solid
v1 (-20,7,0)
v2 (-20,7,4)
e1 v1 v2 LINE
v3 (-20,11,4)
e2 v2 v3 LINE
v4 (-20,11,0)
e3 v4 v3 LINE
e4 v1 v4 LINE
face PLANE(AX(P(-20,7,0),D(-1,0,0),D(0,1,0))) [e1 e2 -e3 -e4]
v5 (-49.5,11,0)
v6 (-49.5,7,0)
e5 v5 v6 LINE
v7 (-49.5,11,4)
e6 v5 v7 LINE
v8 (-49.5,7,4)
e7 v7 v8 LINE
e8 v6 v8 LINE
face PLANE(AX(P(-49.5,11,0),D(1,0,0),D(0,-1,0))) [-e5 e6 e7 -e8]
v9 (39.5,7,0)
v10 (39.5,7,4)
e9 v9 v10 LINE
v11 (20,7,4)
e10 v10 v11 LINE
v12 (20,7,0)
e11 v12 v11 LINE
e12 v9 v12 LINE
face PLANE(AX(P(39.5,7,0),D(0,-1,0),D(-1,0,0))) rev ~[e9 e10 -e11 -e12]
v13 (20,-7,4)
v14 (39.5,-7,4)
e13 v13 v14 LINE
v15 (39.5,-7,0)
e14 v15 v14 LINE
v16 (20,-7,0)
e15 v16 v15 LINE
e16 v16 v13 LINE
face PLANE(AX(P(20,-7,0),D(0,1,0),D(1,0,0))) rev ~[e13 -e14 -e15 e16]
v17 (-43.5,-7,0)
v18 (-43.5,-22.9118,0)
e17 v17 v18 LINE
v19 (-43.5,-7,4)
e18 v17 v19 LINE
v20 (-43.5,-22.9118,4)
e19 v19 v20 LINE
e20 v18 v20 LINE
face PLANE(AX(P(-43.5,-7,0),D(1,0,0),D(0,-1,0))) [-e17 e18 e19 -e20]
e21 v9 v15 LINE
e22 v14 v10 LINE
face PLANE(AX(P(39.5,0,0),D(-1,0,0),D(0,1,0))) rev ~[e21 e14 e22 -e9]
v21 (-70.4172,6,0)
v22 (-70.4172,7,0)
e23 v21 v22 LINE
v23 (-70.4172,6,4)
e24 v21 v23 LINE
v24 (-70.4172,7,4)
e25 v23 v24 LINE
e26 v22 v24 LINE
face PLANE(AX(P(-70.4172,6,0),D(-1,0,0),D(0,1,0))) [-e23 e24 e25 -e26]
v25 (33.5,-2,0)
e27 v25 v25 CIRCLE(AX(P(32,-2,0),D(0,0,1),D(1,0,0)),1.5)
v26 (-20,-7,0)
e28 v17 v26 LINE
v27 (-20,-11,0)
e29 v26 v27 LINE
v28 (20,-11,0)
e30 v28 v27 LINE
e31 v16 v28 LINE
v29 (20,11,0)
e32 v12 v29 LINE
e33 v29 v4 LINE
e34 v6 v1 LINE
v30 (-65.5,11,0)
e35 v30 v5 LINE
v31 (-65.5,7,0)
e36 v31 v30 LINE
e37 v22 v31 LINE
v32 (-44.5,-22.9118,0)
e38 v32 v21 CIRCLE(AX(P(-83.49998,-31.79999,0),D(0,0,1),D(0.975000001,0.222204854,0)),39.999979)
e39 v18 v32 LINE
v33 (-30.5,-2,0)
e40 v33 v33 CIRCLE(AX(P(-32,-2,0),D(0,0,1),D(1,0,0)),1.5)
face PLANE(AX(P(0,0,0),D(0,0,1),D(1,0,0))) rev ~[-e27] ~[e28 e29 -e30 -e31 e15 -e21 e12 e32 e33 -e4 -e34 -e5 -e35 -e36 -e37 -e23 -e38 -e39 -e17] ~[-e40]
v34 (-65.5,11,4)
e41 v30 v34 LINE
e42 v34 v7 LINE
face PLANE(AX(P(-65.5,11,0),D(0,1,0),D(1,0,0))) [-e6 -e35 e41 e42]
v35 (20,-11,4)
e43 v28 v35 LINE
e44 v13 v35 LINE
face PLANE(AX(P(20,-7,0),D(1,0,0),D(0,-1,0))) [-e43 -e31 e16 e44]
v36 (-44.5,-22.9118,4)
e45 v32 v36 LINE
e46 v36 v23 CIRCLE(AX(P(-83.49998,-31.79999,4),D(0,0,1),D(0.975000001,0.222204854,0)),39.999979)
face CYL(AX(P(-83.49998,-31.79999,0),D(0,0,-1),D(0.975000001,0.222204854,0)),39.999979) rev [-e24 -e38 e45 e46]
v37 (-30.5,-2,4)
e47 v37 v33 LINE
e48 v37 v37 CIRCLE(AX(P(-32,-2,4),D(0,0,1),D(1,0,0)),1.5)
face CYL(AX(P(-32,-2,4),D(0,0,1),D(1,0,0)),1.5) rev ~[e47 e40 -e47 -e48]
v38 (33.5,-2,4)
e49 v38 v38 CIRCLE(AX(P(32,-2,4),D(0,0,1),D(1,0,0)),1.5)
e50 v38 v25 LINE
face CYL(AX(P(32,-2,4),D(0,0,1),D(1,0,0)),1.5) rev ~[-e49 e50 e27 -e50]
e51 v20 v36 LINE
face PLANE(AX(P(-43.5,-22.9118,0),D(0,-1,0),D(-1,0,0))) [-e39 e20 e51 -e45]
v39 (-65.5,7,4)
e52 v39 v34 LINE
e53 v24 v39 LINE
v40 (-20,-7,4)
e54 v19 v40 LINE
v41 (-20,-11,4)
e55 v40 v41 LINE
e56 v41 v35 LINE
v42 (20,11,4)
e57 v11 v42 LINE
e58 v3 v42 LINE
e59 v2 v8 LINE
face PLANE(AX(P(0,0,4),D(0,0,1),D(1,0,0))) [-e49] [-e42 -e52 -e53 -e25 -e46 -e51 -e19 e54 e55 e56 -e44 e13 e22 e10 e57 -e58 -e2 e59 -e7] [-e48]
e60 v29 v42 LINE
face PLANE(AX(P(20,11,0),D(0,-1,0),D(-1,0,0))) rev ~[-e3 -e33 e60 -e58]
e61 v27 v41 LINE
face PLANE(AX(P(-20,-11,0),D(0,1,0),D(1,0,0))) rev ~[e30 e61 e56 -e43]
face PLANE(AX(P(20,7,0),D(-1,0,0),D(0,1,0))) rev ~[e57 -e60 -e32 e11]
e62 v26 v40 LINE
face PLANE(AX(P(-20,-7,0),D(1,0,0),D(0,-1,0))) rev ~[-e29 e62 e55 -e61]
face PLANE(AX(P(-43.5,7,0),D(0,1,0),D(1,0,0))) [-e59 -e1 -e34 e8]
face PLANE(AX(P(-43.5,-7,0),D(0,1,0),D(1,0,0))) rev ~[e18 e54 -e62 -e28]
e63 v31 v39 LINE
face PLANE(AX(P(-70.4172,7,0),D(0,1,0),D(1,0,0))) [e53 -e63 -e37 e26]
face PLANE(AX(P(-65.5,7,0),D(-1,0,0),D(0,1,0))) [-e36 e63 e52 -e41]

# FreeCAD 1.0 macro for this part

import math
import FreeCAD as App
import Part
import Sketcher

V = App.Vector

doc = App.newDocument("Part")
body = doc.addObject("PartDesign::Body", "Body")

# Sketch on XY plane
sketch1 = body.newObject("Sketcher::SketchObject", "Sketch")
sketch1.AttachmentSupport = (doc.getObject("XY_Plane"), [""])
sketch1.MapMode = "FlatFace"
sketch1.addGeometry([
    Part.LineSegment(V(20, 11, 0), V(-20, 11, 0)),  # 0
    Part.LineSegment(V(-20, 11, 0), V(-20, 7, 0)),  # 1
    Part.LineSegment(V(-20, 7, 0), V(-49.5, 7, 0)),  # 2
    Part.LineSegment(V(-49.5, 7, 0), V(-49.5, 11, 0)),  # 3
    Part.LineSegment(V(-49.5, 11, 0), V(-65.5, 11, 0)),  # 4
    Part.LineSegment(V(-65.5, 11, 0), V(-65.5, 7, 0)),  # 5
    Part.LineSegment(V(-65.5, 7, 0), V(-70.4, 7, 0)),  # 6
    Part.LineSegment(V(-70.4, 7, 0), V(-70.4, 6, 0)),  # 7
    Part.ArcOfCircle(Part.Circle(V(-83.5, -31.8, 0), V(0, 0, 1), 40), math.radians(13), math.radians(71)),  # 8
    Part.LineSegment(V(-44.5, -22.9, 0), V(-43.5, -22.9, 0)),  # 9
    Part.LineSegment(V(-43.5, -22.9, 0), V(-43.5, -7, 0)),  # 10
    Part.LineSegment(V(-43.5, -7, 0), V(-20, -7, 0)),  # 11
    Part.LineSegment(V(-20, -7, 0), V(-20, -11, 0)),  # 12
    Part.LineSegment(V(-20, -11, 0), V(20, -11, 0)),  # 13
    Part.LineSegment(V(20, -11, 0), V(20, -7, 0)),  # 14
    Part.LineSegment(V(20, -7, 0), V(39.5, -7, 0)),  # 15
    Part.LineSegment(V(39.5, -7, 0), V(39.5, 7, 0)),  # 16
    Part.LineSegment(V(39.5, 7, 0), V(20, 7, 0)),  # 17
    Part.LineSegment(V(20, 7, 0), V(20, 11, 0)),  # 18
], False)
sketch1.addConstraint([
    Sketcher.Constraint("Coincident", 0, 2, 1, 1),
    Sketcher.Constraint("Coincident", 1, 2, 2, 1),
    Sketcher.Constraint("Coincident", 2, 2, 3, 1),
    Sketcher.Constraint("Coincident", 3, 2, 4, 1),
    Sketcher.Constraint("Coincident", 4, 2, 5, 1),
    Sketcher.Constraint("Coincident", 5, 2, 6, 1),
    Sketcher.Constraint("Coincident", 6, 2, 7, 1),
    Sketcher.Constraint("Coincident", 7, 2, 8, 2),
    Sketcher.Constraint("Coincident", 8, 1, 9, 1),
    Sketcher.Constraint("Coincident", 9, 2, 10, 1),
    Sketcher.Constraint("Coincident", 10, 2, 11, 1),
    Sketcher.Constraint("Coincident", 11, 2, 12, 1),
    Sketcher.Constraint("Coincident", 12, 2, 13, 1),
    Sketcher.Constraint("Coincident", 13, 2, 14, 1),
    Sketcher.Constraint("Coincident", 14, 2, 15, 1),
    Sketcher.Constraint("Coincident", 15, 2, 16, 1),
    Sketcher.Constraint("Coincident", 16, 2, 17, 1),
    Sketcher.Constraint("Coincident", 17, 2, 18, 1),
    Sketcher.Constraint("Coincident", 18, 2, 0, 1),
    Sketcher.Constraint("Horizontal", 0),
    Sketcher.Constraint("Vertical", 1),
    Sketcher.Constraint("Horizontal", 2),
    Sketcher.Constraint("Vertical", 3),
    Sketcher.Constraint("Horizontal", 4),
    Sketcher.Constraint("Vertical", 5),
    Sketcher.Constraint("Horizontal", 6),
    Sketcher.Constraint("Vertical", 7),
    Sketcher.Constraint("Horizontal", 9),
    Sketcher.Constraint("Vertical", 10),
    Sketcher.Constraint("Horizontal", 11),
    Sketcher.Constraint("Vertical", 12),
    Sketcher.Constraint("Horizontal", 13),
    Sketcher.Constraint("Vertical", 14),
    Sketcher.Constraint("Horizontal", 15),
    Sketcher.Constraint("Vertical", 16),
    Sketcher.Constraint("Horizontal", 17),
    Sketcher.Constraint("Vertical", 18),
    Sketcher.Constraint("Symmetric", 0, 2, 13, 2, -1, 1),
    Sketcher.Constraint("Symmetric", 11, 2, 17, 2, -1, 1),
    Sketcher.Constraint("Symmetric", 11, 2, 14, 2, -2),
    Sketcher.Constraint("Horizontal", 0, 2, 3, 2),
    Sketcher.Constraint("Horizontal", 2, 2, 5, 2),
    Sketcher.Constraint("Horizontal", 6, 2, 16, 2),
    Sketcher.Constraint("Equal", 9, 7),
    Sketcher.Constraint("Radius", 8, 40.0),
    Sketcher.Constraint("DistanceX", 0, 2, 0, 1, 40.0),
    Sketcher.Constraint("DistanceX", 4, 2, 4, 1, 16.0),
    Sketcher.Constraint("DistanceX", 9, 1, 9, 2, 1.0),
    Sketcher.Constraint("DistanceY", 1, 2, 1, 1, 4.0),
    Sketcher.Constraint("DistanceY", 16, 1, 16, 2, 14.0),
    Sketcher.Constraint("DistanceX", 2, 2, 9, 2, 6.0),
    Sketcher.Constraint("DistanceX", 9, 2, -1, 1, 43.5),
    Sketcher.Constraint("DistanceX", -1, 1, 15, 2, 39.5),
    Sketcher.Constraint("DistanceY", 8, 3, 1, 2, 38.8),
    Sketcher.Constraint("DistanceX", 8, 3, 2, 2, 34.0),
])
pad1 = body.newObject("PartDesign::Pad", "Pad")
pad1.Profile = sketch1
pad1.Length = 4

# Sketch on XY plane
sketch2 = body.newObject("Sketcher::SketchObject", "Sketch001")
sketch2.AttachmentSupport = (doc.getObject("XY_Plane"), [""])
sketch2.MapMode = "FlatFace"
sketch2.AttachmentOffset = App.Placement(V(0, 0, 4), App.Rotation())
sketch2.addGeometry([
    Part.Circle(V(-32, -2, 0), V(0, 0, 1), 1.5),
    Part.Circle(V(32, -2, 0), V(0, 0, 1), 1.5),
], False)
sketch2.addConstraint([
    Sketcher.Constraint("Equal", 0, 1),
    Sketcher.Constraint("Symmetric", 0, 3, 1, 3, -2),
    Sketcher.Constraint("Diameter", 0, 3.0),
    Sketcher.Constraint("DistanceX", 0, 3, 1, 3, 64.0),
    Sketcher.Constraint("DistanceY", 0, 3, -1, 1, 2.0),
])
pocket1 = body.newObject("PartDesign::Pocket", "Pocket")
pocket1.Profile = sketch2
pocket1.Type = "ThroughAll"

doc.recompute()
